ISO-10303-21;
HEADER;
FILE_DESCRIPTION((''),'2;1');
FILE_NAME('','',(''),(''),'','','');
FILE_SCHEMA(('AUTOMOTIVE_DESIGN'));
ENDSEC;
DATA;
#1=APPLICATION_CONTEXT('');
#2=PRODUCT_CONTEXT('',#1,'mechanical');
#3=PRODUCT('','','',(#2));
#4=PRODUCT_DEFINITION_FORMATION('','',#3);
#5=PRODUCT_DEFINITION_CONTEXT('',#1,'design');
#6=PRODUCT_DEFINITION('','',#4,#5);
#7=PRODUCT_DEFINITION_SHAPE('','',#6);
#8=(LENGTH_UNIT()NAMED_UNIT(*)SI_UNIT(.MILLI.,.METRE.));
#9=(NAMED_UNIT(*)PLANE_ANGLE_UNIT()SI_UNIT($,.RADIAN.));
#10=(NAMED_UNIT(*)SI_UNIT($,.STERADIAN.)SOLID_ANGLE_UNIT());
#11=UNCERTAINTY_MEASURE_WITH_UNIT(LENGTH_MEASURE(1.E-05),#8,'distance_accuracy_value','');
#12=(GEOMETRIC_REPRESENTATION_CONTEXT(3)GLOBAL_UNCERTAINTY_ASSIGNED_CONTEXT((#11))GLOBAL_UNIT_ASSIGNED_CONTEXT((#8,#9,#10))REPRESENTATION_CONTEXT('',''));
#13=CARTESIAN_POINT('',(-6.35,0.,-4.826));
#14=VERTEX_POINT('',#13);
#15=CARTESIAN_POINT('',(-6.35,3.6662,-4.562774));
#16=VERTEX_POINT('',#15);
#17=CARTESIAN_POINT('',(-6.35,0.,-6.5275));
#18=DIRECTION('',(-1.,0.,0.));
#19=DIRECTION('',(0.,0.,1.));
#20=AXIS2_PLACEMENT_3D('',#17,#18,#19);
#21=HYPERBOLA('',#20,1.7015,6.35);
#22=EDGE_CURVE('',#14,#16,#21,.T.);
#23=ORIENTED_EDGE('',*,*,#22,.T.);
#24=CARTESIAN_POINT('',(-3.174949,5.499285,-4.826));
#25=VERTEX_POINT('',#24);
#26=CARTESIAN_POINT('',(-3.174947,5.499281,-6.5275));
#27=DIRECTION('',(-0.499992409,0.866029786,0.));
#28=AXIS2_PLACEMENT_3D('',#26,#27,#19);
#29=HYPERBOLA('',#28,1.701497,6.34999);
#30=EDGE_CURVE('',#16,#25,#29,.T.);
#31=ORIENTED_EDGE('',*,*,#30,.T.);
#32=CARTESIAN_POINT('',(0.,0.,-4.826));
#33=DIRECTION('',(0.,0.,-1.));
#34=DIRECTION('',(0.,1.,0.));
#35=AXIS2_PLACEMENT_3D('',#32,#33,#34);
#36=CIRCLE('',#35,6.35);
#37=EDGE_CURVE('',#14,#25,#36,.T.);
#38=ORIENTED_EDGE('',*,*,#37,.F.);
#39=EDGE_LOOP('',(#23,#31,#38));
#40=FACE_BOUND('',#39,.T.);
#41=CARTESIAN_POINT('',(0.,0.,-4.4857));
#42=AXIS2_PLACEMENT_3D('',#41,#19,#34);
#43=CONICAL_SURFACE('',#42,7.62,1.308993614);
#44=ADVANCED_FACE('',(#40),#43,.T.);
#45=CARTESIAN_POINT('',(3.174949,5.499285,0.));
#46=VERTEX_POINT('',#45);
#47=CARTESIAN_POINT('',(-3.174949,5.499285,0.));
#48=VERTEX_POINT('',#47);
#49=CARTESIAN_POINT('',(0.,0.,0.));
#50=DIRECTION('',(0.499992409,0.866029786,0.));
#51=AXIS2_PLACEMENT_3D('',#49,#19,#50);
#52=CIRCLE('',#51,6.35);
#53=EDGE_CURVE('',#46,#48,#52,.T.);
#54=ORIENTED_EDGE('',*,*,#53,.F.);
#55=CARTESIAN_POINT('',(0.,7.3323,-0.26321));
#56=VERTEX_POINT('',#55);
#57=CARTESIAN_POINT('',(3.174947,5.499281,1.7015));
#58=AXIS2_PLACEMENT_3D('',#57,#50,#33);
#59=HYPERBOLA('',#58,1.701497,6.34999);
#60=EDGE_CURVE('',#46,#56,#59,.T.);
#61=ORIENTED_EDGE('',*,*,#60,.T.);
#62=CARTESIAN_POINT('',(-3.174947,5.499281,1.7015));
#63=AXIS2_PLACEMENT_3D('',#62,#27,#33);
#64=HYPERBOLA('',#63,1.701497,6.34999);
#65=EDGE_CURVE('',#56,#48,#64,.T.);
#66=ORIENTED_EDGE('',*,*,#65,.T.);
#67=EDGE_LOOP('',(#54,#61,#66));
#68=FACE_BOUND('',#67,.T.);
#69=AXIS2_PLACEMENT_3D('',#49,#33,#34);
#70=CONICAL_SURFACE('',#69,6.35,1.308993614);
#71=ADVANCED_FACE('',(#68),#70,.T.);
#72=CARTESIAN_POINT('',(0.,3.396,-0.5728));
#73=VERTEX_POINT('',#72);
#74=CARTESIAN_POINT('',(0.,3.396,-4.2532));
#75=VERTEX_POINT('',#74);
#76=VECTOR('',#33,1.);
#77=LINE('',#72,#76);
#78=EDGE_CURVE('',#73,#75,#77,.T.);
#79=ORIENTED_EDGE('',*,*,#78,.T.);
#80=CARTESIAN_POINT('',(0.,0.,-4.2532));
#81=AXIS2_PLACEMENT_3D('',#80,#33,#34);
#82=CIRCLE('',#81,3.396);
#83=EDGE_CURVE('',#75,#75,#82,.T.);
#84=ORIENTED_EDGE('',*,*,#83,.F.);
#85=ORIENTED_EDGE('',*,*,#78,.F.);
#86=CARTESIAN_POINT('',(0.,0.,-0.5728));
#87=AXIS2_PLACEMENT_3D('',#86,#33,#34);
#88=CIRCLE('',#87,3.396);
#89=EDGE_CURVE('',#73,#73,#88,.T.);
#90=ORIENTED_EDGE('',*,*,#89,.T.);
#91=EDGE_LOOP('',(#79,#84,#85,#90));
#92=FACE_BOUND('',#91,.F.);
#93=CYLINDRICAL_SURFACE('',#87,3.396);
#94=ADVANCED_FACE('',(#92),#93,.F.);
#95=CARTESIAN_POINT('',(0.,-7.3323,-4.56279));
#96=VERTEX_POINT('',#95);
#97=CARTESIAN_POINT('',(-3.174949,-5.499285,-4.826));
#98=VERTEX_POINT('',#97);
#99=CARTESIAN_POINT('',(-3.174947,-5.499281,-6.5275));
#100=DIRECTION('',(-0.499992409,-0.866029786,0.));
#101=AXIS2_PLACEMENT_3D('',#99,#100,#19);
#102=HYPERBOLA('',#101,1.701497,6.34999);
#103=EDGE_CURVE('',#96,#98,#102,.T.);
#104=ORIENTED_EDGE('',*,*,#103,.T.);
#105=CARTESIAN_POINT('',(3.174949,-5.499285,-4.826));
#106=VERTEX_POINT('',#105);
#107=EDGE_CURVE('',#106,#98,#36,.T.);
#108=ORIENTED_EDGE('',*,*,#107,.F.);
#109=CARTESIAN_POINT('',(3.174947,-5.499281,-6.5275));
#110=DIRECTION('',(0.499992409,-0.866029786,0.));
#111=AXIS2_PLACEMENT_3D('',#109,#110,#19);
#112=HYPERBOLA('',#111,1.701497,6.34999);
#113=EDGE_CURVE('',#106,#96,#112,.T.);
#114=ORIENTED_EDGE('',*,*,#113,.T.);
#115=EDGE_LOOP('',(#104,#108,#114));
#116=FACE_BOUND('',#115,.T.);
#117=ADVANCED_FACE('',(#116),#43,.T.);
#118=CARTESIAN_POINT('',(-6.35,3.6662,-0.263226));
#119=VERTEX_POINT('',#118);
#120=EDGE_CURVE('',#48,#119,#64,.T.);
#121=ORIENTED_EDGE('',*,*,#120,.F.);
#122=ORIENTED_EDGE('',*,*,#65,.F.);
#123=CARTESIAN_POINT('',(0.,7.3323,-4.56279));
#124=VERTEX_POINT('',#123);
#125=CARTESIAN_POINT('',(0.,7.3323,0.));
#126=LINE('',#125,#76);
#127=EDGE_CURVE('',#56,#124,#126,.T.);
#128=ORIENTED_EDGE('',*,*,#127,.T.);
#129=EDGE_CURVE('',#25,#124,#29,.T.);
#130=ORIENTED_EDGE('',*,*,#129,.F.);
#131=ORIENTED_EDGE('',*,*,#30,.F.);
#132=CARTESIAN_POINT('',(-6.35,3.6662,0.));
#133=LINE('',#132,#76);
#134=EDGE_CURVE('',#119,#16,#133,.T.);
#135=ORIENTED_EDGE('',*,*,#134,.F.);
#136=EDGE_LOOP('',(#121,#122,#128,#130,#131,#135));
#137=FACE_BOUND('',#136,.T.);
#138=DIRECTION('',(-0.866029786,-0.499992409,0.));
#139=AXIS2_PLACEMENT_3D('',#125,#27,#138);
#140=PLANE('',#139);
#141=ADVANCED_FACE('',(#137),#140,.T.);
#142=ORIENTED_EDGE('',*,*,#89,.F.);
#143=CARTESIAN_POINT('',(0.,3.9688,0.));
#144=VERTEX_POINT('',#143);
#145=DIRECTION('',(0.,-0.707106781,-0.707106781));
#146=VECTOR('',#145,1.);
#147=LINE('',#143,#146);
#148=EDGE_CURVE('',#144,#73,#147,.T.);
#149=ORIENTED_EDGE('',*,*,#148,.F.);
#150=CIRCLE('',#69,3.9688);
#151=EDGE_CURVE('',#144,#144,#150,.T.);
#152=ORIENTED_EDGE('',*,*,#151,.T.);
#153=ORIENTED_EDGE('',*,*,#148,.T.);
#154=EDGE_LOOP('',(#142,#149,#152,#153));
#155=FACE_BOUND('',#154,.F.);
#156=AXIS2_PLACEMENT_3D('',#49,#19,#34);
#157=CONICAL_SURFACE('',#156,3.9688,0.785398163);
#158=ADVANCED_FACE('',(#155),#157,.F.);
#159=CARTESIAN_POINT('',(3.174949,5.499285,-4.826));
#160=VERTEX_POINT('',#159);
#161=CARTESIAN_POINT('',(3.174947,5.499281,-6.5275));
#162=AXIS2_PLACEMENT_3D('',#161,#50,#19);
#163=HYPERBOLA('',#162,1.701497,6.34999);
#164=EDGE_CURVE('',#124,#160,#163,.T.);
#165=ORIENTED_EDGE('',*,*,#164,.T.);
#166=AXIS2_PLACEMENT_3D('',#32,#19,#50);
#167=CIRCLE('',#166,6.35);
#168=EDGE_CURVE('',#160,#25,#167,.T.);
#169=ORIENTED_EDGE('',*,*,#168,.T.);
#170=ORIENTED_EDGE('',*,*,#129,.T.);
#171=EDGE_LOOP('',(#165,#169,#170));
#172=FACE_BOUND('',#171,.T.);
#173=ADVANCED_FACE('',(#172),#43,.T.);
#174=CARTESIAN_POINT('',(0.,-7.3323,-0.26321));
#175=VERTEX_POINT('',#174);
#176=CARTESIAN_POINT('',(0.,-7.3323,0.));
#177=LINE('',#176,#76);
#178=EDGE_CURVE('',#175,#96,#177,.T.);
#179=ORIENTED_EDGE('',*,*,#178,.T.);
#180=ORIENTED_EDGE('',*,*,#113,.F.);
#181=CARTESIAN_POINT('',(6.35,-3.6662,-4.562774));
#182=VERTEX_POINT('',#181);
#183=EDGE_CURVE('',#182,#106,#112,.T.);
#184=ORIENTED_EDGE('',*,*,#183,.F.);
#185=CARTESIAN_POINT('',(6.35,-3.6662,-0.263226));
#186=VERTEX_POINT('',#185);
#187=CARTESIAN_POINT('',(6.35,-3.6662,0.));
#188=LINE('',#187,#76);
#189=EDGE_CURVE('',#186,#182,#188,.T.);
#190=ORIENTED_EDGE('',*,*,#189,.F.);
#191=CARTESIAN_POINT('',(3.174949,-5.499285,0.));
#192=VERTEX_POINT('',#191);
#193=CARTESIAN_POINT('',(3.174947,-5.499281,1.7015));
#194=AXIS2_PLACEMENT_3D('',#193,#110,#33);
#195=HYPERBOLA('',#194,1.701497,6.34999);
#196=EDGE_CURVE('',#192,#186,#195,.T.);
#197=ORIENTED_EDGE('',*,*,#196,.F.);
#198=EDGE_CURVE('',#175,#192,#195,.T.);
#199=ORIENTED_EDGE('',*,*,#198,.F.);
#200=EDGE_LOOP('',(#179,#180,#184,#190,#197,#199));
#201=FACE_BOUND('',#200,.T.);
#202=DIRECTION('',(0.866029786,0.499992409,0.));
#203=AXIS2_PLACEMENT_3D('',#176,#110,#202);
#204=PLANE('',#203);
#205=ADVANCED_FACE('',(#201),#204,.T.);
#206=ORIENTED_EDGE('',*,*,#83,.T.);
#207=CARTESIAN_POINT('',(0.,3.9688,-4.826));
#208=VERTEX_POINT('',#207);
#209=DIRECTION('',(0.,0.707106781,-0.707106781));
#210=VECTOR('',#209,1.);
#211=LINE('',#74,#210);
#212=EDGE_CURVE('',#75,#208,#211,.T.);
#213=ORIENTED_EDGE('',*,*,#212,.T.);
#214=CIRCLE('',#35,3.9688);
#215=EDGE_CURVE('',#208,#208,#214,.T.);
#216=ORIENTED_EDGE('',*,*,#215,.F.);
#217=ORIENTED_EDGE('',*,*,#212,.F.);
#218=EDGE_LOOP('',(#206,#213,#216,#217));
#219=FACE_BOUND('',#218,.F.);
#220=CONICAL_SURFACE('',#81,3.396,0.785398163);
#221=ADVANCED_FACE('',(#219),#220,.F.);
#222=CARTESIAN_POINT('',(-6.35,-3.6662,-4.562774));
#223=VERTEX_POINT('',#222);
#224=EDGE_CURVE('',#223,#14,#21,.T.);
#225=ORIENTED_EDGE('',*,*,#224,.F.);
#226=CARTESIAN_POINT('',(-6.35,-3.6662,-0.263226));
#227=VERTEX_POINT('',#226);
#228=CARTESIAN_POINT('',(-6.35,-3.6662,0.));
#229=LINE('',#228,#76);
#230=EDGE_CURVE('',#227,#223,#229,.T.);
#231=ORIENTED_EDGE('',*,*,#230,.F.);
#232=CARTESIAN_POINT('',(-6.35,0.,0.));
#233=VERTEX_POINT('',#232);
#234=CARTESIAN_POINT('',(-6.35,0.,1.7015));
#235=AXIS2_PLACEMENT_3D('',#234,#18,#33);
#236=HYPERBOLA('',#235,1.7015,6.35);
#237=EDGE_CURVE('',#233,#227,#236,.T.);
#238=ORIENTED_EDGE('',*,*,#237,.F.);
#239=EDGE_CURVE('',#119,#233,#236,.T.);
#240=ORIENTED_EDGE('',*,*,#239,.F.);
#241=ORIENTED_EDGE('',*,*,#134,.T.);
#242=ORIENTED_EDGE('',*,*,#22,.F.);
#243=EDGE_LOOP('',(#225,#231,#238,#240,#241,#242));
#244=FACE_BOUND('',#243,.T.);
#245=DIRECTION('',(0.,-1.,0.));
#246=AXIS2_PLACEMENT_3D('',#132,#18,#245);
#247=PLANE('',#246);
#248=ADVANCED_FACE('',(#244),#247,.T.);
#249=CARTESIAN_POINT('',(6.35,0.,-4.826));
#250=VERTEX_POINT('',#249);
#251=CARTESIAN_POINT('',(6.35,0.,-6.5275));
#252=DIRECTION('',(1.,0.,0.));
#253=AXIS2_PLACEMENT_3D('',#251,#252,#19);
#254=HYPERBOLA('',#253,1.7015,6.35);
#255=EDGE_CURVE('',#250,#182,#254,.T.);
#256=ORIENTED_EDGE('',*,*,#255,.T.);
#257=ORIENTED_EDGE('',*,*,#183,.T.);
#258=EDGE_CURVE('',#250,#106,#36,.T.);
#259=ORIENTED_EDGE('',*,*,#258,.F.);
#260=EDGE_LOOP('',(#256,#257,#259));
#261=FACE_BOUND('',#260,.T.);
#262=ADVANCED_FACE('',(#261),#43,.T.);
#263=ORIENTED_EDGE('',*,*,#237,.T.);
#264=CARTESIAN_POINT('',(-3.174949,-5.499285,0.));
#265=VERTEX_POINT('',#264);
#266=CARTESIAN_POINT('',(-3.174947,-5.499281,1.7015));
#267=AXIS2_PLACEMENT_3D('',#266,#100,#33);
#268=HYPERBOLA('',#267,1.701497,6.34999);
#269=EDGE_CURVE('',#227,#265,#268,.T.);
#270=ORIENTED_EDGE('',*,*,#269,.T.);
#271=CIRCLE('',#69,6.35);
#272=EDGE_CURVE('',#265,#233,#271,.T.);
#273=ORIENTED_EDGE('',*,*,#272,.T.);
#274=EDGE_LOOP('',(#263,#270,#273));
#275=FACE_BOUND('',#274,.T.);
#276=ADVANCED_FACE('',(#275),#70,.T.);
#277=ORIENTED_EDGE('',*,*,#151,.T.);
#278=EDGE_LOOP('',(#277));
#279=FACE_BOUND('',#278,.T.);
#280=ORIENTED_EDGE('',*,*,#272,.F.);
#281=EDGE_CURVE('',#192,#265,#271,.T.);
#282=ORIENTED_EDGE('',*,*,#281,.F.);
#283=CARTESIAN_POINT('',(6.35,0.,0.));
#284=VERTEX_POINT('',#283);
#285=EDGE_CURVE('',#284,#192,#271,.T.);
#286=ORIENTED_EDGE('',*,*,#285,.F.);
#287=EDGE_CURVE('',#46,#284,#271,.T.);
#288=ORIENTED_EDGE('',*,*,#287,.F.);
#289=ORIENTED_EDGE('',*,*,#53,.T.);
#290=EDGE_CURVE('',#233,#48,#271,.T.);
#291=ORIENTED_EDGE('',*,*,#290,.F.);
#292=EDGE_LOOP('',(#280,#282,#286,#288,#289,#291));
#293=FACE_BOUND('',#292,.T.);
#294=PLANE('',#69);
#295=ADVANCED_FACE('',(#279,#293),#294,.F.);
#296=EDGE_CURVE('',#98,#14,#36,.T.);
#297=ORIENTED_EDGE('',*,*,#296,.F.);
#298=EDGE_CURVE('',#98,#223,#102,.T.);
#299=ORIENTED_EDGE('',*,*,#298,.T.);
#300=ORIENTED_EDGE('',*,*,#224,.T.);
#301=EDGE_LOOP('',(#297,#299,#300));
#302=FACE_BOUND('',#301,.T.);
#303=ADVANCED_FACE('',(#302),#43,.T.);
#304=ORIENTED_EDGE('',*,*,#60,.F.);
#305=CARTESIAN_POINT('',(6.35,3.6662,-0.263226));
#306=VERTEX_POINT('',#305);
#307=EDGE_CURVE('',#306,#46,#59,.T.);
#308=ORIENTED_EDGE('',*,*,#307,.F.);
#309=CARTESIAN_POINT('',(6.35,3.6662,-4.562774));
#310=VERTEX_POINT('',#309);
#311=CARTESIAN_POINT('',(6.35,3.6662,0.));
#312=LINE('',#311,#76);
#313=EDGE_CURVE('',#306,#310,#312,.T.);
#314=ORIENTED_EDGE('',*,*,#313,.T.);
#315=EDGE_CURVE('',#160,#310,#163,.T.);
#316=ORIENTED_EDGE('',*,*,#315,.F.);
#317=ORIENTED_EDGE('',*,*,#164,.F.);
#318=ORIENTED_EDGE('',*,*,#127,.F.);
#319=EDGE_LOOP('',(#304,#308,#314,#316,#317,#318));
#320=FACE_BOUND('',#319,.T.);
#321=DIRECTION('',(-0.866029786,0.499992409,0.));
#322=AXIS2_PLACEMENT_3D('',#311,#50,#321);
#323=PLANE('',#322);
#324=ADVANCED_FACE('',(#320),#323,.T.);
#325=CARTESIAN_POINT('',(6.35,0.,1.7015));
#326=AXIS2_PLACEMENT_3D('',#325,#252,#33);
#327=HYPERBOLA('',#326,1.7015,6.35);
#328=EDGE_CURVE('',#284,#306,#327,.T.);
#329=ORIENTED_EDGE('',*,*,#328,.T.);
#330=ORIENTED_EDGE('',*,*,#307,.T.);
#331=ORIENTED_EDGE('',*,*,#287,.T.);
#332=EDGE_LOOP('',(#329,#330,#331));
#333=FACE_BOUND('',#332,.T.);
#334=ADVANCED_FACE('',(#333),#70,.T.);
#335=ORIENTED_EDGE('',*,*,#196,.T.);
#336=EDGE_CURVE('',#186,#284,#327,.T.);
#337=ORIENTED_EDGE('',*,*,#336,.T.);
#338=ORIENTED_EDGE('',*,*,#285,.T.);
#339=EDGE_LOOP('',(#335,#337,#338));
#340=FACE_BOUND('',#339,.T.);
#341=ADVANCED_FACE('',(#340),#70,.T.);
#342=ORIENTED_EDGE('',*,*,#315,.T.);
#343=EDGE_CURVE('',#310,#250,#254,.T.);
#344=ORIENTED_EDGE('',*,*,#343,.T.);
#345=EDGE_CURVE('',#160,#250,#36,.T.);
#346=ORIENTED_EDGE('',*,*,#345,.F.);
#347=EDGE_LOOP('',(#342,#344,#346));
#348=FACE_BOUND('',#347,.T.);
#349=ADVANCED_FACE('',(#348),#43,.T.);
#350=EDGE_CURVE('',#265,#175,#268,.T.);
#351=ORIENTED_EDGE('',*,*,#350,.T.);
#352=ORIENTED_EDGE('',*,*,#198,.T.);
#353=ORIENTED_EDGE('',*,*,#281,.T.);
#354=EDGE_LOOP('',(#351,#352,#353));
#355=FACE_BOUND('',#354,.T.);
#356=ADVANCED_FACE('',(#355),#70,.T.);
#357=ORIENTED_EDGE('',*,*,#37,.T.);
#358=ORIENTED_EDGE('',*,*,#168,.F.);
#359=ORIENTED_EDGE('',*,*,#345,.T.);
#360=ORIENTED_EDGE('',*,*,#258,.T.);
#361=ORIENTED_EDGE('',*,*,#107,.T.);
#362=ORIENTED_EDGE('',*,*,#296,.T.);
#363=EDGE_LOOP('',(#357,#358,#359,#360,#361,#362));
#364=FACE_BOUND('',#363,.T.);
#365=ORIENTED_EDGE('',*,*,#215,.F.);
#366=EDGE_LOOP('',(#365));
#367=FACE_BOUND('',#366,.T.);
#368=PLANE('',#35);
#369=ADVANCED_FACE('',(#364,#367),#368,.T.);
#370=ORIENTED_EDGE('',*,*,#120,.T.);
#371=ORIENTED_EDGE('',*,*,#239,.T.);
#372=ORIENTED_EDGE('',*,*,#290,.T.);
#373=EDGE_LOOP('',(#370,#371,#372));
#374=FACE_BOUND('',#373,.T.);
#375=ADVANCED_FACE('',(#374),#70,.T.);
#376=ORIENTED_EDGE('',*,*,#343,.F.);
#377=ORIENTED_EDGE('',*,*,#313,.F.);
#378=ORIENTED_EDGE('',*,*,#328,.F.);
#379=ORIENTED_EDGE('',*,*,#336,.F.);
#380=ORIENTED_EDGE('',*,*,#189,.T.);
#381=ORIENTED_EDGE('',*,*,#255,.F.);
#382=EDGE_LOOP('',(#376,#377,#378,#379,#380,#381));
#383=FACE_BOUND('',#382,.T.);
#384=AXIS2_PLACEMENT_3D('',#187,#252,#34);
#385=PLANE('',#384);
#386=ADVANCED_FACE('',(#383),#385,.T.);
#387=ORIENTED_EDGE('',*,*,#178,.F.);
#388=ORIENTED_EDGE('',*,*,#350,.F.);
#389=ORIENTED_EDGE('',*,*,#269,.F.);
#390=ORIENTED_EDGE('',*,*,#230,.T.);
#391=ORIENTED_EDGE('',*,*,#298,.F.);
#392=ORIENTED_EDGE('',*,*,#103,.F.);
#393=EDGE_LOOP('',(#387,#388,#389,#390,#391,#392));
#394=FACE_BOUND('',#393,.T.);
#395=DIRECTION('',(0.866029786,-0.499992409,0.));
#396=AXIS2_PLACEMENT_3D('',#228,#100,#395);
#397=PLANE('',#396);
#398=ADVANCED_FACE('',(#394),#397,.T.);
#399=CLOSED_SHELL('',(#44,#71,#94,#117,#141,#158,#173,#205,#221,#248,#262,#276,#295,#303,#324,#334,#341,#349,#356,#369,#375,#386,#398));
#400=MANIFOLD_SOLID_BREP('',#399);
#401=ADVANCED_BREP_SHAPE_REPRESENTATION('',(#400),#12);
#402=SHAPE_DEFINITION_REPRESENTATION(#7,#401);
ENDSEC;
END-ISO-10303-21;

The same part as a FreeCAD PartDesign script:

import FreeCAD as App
import Part
import Sketcher

V = App.Vector
Q = App.Units.Quantity


def add_polygon(sketch, points):
    """Adds a closed chain of lines whose ends are joined by coincident constraints."""
    first, n = sketch.GeometryCount, len(points)
    for a, b in zip(points, points[1:] + points[:1]):
        sketch.addGeometry(Part.LineSegment(App.Vector(*a, 0), App.Vector(*b, 0)), False)
    for i in range(n):
        sketch.addConstraint(Sketcher.Constraint("Coincident", first + i, 2, first + (i + 1) % n, 1))

doc = App.newDocument("Part")
body = doc.addObject("PartDesign::Body", "Body")

sketch1 = doc.addObject("Sketcher::SketchObject", "Sketch")
body.addObject(sketch1)
sketch1.AttachmentSupport = (doc.YZ_Plane, [""])
sketch1.MapMode = "FlatFace"
add_polygon(sketch1, [(0, 0), (0, -4.8), (6.3, -4.8), (7.6, -4.5), (7.6, -0.3), (6.3, 0)])
sketch1.addConstraint([
    Sketcher.Constraint("Vertical", 0),
    Sketcher.Constraint("Horizontal", 1),
    Sketcher.Constraint("Vertical", 3),
    Sketcher.Constraint("Horizontal", 5),
    Sketcher.Constraint("Coincident", 5, 2, -1, 1),
    Sketcher.Constraint("Vertical", 1, 2, 4, 2),
    Sketcher.Constraint("Equal", 2, 4),
    Sketcher.Constraint("Angle", 2, Q("15.0002 deg")),
    Sketcher.Constraint("DistanceX", 1, 1, 1, 2, Q("0.25 in")),
    Sketcher.Constraint("DistanceY", 0, 2, 0, 1, Q("0.19 in")),
    Sketcher.Constraint("DistanceX", -1, 1, 2, 2, Q("0.3 in")),
])
revolution = doc.addObject("PartDesign::Revolution", "Revolution")
body.addObject(revolution)
revolution.Profile = sketch1
revolution.ReferenceAxis = (sketch1, ["V_Axis"])
revolution.Angle = 360

sketch2 = doc.addObject("Sketcher::SketchObject", "Sketch001")
body.addObject(sketch2)
sketch2.AttachmentSupport = (doc.XY_Plane, [""])
sketch2.MapMode = "FlatFace"
add_polygon(sketch2, [(-13, 13), (-13, -13), (13, -13), (13, 13)])
add_polygon(sketch2, [(0, -7), (-6, -4), (-6, 4), (0, 7), (6, 4), (6, -4)])
sketch2.addConstraint([
    Sketcher.Constraint("Vertical", 0),
    Sketcher.Constraint("Horizontal", 1),
    Sketcher.Constraint("Vertical", 2),
    Sketcher.Constraint("Horizontal", 3),
    Sketcher.Constraint("Vertical", 5),
    Sketcher.Constraint("Vertical", 8),
    Sketcher.Constraint("Symmetric", 0, 2, 2, 2, -1, 1),
    Sketcher.Constraint("Symmetric", 4, 2, 7, 2, -1, 1),
    Sketcher.Constraint("Symmetric", 6, 2, 9, 2, -1, 1),
    Sketcher.Constraint("PointOnObject", 6, 2, -2),
    Sketcher.Constraint("Parallel", 6, 9),
    Sketcher.Constraint("Horizontal", 5, 2, 7, 2),
    Sketcher.Constraint("Equal", 3, 0),
    Sketcher.Constraint("DistanceX", 1, 1, 1, 2, Q("1 in")),
    Sketcher.Constraint("Angle", 4, Q("150.0005 deg")),
    Sketcher.Constraint("DistanceX", 5, 2, 7, 2, Q("0.5 in")),
    Sketcher.Constraint("DistanceY", 4, 2, 6, 2, Q("0.433 in")),
])
pocket1 = doc.addObject("PartDesign::Pocket", "Pocket")
body.addObject(pocket1)
pocket1.Profile = sketch2
pocket1.Length = Q("0.19 in")

sketch3 = doc.addObject("Sketcher::SketchObject", "Sketch002")
body.addObject(sketch3)
sketch3.AttachmentSupport = (doc.YZ_Plane, [""])
sketch3.MapMode = "FlatFace"
add_polygon(sketch3, [(0, 0), (0, -4.8), (4, -4.8), (3.4, -4.3), (3.4, -0.6), (4, 0)])
sketch3.addConstraint([
    Sketcher.Constraint("Vertical", 0),
    Sketcher.Constraint("Horizontal", 1),
    Sketcher.Constraint("Vertical", 3),
    Sketcher.Constraint("Horizontal", 5),
    Sketcher.Constraint("Coincident", 5, 2, -1, 1),
    Sketcher.Constraint("Perpendicular", 2, 4),
    Sketcher.Constraint("Vertical", 1, 2, 4, 2),
    Sketcher.Constraint("Equal", 2, 4),
    Sketcher.Constraint("DistanceY", 0, 2, 0, 1, Q("0.19 in")),
    Sketcher.Constraint("DistanceX", 1, 1, 1, 2, Q("0.156252 in")),
    Sketcher.Constraint("DistanceY", 3, 1, 3, 2, Q("0.1449 in")),
])
groove = doc.addObject("PartDesign::Groove", "Groove")
body.addObject(groove)
groove.Profile = sketch3
groove.ReferenceAxis = (sketch3, ["V_Axis"])
groove.Angle = 360

doc.recompute()
